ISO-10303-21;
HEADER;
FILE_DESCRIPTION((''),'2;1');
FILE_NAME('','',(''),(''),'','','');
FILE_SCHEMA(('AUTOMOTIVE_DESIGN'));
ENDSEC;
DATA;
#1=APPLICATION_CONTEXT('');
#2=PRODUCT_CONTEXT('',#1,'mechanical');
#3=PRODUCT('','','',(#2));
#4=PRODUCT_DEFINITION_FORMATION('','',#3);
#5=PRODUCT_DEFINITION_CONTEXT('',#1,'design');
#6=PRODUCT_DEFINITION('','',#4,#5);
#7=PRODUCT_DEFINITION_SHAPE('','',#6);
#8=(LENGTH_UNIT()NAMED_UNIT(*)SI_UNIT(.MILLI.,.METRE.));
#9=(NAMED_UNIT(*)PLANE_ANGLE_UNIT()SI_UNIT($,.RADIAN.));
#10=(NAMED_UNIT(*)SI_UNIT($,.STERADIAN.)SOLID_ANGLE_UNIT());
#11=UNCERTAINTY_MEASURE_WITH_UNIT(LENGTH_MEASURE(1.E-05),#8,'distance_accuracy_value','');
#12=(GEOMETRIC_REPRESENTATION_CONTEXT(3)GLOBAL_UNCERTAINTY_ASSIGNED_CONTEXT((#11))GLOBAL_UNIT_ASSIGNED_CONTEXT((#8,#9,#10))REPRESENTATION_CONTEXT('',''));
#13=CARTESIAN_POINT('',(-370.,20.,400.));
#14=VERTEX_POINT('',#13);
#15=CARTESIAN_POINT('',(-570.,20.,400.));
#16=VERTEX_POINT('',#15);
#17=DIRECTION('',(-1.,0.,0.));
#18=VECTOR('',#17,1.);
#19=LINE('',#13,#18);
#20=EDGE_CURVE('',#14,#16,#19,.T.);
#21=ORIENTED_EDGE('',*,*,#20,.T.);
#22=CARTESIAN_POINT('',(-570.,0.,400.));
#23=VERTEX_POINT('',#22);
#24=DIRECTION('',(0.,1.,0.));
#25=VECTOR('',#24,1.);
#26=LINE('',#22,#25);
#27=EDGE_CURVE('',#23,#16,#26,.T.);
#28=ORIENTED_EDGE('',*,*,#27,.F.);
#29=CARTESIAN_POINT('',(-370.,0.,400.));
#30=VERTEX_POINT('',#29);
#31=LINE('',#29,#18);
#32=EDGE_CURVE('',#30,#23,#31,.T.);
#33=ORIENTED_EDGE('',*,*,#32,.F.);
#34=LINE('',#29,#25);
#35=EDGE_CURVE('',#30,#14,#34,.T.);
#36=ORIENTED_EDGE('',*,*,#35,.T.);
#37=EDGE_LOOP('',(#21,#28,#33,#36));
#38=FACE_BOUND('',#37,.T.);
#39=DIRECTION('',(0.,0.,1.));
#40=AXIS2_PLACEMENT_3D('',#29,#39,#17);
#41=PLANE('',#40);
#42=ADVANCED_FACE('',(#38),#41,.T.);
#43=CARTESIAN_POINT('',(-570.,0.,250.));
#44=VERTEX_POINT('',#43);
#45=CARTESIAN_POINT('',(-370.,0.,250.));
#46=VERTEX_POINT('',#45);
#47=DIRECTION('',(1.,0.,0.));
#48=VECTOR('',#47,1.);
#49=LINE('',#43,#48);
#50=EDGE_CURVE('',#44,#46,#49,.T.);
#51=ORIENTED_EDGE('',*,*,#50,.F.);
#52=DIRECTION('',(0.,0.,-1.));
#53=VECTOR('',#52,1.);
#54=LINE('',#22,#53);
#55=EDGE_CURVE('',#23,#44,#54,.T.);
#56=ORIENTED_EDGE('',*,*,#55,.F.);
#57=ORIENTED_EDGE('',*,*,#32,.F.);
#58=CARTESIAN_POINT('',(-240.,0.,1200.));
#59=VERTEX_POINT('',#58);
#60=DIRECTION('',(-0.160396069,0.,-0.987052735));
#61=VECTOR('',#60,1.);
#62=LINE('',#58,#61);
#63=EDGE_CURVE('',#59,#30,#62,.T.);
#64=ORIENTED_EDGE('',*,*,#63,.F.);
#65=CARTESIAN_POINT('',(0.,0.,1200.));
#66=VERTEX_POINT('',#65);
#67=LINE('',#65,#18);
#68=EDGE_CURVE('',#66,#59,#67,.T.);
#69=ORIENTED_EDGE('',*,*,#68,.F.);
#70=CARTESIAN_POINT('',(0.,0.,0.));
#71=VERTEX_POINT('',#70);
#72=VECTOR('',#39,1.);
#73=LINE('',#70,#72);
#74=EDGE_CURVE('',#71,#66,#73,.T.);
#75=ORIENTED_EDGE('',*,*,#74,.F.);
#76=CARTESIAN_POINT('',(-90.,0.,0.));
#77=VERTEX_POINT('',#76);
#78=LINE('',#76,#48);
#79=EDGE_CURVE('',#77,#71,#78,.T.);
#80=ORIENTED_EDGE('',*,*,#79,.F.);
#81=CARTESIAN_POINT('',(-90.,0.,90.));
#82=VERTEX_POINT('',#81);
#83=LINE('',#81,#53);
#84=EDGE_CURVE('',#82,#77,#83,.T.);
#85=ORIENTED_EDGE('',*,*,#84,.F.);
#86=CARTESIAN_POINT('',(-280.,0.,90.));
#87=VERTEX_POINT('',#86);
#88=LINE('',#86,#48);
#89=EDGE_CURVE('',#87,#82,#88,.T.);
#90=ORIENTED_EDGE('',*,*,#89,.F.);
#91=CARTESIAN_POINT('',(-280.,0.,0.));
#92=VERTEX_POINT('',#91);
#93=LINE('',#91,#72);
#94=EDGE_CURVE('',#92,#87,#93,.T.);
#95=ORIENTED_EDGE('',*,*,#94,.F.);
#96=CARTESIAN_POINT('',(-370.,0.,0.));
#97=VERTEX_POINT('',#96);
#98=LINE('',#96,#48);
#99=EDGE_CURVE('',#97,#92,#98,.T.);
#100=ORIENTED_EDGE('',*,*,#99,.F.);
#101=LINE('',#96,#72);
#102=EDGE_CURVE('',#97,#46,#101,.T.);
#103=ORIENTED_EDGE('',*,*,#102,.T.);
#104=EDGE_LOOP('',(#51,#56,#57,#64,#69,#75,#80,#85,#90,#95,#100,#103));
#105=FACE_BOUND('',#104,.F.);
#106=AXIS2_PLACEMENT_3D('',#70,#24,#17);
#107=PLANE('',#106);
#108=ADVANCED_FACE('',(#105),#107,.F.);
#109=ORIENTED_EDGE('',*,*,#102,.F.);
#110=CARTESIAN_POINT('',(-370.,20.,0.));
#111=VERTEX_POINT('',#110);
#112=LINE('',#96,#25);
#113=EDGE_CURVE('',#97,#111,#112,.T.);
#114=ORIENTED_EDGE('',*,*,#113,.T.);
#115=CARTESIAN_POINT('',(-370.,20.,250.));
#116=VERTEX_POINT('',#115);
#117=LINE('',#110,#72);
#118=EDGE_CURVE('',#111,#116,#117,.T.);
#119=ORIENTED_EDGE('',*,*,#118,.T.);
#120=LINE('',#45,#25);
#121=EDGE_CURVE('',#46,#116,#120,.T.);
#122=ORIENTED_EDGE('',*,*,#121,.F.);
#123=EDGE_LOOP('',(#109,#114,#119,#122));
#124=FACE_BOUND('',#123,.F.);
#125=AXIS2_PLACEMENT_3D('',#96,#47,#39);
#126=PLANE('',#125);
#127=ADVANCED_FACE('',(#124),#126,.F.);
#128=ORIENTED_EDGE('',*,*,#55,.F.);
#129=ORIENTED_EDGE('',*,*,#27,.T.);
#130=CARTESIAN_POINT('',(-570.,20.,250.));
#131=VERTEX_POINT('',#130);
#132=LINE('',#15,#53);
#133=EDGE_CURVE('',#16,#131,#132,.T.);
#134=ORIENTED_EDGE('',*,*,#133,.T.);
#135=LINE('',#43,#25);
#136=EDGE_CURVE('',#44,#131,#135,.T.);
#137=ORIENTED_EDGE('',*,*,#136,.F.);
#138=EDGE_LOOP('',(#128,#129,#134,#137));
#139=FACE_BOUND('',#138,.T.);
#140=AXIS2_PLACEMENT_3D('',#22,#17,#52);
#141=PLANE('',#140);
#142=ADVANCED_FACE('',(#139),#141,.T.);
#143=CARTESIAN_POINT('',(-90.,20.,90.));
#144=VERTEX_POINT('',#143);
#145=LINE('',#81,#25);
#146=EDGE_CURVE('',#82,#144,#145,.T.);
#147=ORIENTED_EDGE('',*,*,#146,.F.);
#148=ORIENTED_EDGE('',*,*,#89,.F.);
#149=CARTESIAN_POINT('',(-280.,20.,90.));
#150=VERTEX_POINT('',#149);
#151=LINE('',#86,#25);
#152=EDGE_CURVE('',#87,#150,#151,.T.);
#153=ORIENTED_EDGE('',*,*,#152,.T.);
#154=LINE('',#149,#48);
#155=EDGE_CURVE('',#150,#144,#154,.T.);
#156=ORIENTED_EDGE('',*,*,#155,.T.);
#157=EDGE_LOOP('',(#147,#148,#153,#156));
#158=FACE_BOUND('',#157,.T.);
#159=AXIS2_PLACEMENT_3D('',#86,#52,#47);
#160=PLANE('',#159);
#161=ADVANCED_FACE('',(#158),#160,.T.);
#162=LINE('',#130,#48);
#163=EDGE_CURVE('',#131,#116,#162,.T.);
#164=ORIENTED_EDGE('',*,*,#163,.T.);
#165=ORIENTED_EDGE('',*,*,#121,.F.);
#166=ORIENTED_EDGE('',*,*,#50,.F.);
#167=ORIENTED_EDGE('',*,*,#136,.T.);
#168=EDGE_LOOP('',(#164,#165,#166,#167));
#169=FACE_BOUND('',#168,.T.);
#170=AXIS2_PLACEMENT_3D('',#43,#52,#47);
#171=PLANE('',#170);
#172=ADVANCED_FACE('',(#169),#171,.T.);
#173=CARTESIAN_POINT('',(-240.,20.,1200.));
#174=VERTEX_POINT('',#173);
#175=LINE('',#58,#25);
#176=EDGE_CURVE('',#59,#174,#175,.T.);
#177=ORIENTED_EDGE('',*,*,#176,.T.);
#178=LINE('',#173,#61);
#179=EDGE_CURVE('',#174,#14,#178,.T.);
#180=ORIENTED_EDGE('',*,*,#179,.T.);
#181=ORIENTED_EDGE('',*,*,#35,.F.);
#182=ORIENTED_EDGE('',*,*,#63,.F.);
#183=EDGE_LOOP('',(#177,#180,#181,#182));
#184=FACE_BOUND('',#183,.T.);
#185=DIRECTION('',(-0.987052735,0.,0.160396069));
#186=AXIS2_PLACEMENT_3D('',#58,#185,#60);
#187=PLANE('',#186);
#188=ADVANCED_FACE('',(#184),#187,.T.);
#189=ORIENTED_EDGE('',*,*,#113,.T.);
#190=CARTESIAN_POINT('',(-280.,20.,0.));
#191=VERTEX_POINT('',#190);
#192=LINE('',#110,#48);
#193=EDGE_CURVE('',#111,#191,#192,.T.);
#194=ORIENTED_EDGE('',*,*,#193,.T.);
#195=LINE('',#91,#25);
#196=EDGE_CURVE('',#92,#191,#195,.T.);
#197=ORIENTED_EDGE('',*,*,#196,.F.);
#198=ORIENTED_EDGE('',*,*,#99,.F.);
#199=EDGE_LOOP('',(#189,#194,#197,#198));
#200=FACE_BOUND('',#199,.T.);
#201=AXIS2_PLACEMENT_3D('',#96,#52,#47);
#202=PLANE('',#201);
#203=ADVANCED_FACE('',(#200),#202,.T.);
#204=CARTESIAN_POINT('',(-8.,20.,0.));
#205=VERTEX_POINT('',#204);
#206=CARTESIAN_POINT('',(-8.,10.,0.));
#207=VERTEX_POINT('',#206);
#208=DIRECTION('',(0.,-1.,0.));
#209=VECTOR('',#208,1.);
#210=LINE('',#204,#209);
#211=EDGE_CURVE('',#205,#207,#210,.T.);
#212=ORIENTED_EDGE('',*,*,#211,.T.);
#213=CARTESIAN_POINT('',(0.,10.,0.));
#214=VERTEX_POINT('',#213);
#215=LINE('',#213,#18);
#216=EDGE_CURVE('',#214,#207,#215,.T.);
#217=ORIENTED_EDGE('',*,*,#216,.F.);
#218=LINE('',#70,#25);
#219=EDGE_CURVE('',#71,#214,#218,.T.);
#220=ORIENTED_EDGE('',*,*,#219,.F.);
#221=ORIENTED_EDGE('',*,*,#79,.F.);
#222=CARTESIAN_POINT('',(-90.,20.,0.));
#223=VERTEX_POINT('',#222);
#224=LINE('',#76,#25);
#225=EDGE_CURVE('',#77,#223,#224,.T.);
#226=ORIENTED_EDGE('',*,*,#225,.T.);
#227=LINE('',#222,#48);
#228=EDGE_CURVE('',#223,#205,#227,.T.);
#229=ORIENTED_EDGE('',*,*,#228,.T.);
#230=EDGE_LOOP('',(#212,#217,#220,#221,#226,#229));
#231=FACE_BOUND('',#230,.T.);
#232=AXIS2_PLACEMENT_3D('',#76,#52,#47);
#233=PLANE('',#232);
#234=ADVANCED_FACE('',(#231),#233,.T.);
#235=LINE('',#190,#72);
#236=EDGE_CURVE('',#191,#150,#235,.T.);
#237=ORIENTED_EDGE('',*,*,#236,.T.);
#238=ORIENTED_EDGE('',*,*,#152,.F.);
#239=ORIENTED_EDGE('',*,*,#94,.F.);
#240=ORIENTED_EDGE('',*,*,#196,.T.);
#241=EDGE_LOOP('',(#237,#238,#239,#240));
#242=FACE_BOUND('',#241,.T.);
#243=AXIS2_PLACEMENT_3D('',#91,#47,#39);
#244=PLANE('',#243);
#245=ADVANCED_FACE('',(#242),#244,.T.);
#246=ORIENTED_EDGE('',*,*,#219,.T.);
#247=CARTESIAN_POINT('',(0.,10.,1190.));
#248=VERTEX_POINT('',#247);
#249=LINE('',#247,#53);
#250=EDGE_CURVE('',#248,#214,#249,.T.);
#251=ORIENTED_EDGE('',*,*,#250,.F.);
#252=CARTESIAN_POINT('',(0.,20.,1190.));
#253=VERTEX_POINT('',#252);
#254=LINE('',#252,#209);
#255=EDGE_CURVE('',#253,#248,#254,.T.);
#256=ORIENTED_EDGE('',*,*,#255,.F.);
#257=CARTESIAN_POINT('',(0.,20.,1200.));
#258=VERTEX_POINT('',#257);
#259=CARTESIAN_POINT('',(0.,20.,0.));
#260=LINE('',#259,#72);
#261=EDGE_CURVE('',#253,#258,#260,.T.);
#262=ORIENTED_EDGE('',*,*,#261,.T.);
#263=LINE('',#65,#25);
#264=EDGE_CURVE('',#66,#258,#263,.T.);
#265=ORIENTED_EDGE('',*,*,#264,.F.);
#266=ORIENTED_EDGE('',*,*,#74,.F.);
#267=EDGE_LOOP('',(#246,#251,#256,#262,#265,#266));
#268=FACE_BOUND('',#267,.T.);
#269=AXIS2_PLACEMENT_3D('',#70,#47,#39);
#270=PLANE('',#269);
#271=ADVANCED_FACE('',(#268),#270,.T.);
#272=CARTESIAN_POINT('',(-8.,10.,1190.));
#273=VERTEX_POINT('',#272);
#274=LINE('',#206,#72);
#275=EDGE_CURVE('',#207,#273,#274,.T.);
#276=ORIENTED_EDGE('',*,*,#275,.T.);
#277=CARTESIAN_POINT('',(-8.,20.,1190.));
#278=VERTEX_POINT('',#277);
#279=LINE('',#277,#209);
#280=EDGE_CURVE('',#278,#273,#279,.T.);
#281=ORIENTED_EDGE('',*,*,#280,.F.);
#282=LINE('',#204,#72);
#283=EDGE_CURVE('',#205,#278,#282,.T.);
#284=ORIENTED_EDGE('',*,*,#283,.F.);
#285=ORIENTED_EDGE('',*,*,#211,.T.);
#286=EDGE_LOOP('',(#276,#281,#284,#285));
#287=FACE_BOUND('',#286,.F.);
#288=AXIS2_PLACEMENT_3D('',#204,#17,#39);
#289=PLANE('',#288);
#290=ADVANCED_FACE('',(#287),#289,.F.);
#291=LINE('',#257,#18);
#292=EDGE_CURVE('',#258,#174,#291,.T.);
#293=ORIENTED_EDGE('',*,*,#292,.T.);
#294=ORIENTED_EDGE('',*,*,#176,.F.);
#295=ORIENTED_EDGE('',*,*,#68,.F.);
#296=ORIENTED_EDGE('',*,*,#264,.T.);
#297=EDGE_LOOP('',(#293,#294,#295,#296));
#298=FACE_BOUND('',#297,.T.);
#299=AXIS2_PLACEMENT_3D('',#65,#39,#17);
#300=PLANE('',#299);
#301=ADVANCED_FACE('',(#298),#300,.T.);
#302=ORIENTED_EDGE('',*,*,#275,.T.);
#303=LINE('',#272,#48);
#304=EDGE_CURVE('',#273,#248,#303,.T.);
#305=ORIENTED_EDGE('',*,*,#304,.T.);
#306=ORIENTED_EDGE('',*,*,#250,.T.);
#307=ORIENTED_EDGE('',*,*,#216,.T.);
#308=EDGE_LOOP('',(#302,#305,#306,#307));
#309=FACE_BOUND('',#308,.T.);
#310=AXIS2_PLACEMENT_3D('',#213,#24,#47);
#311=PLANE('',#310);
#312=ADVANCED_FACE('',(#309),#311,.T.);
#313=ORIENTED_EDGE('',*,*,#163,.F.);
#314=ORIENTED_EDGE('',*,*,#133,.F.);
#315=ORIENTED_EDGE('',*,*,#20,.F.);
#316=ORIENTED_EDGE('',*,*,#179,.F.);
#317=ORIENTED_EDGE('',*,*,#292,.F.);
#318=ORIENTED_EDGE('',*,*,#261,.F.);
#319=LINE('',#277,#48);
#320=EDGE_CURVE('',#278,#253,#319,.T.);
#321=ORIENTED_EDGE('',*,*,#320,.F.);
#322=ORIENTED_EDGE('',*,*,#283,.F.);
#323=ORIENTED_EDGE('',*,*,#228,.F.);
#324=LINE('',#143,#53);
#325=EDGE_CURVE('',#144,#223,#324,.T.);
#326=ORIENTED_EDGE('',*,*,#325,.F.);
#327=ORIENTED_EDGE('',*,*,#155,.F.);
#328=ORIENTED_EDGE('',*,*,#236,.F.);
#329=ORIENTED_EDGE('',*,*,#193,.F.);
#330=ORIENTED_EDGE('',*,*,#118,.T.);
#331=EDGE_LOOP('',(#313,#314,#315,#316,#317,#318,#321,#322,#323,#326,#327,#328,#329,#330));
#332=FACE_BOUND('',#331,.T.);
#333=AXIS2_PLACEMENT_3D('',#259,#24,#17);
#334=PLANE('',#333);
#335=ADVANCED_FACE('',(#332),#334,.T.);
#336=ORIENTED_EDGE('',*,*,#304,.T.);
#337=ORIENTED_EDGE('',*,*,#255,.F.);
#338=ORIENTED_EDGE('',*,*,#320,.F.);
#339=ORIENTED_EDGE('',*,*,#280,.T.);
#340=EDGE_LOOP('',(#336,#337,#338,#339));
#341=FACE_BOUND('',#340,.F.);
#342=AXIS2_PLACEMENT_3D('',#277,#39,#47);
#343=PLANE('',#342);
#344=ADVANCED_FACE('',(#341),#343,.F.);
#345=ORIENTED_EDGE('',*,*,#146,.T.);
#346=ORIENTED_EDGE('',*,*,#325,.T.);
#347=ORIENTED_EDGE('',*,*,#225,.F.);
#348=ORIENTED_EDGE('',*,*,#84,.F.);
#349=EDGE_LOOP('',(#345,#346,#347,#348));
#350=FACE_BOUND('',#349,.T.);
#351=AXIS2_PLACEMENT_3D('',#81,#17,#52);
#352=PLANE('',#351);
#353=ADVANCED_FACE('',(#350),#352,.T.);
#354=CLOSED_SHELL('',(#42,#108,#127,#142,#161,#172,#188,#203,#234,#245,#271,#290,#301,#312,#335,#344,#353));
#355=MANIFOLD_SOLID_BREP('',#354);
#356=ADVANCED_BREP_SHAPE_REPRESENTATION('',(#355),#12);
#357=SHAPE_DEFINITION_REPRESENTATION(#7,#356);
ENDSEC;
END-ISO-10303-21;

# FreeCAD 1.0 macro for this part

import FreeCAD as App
import Part
import Sketcher
Q = App.Units.Quantity

doc = App.newDocument("Part")
body = doc.addObject("PartDesign::Body", "Body")

# Sketch on XZ plane
sketch1 = body.newObject("Sketcher::SketchObject", "Sketch")
sketch1.AttachmentSupport = (doc.getObject("XZ_Plane"), [""])
sketch1.MapMode = "FlatFace"
sketch1.addGeometry(Part.LineSegment(App.Vector(0, 1200, 0), App.Vector(0, 0, 0)), False)
sketch1.addGeometry(Part.LineSegment(App.Vector(0, 0, 0), App.Vector(-90, 0, 0)), False)
sketch1.addGeometry(Part.LineSegment(App.Vector(-90, 0, 0), App.Vector(-90, 90, 0)), False)
sketch1.addGeometry(Part.LineSegment(App.Vector(-90, 90, 0), App.Vector(-280, 90, 0)), False)
sketch1.addGeometry(Part.LineSegment(App.Vector(-280, 90, 0), App.Vector(-280, 0, 0)), False)
sketch1.addGeometry(Part.LineSegment(App.Vector(-280, 0, 0), App.Vector(-370, 0, 0)), False)
sketch1.addGeometry(Part.LineSegment(App.Vector(-370, 0, 0), App.Vector(-370, 250, 0)), False)
sketch1.addGeometry(Part.LineSegment(App.Vector(-370, 250, 0), App.Vector(-570, 250, 0)), False)
sketch1.addGeometry(Part.LineSegment(App.Vector(-570, 250, 0), App.Vector(-570, 400, 0)), False)
sketch1.addGeometry(Part.LineSegment(App.Vector(-570, 400, 0), App.Vector(-370, 400, 0)), False)
sketch1.addGeometry(Part.LineSegment(App.Vector(-370, 400, 0), App.Vector(-240, 1200, 0)), False)
sketch1.addGeometry(Part.LineSegment(App.Vector(-240, 1200, 0), App.Vector(0, 1200, 0)), False)
sketch1.addConstraint(Sketcher.Constraint("Coincident", 0, 2, 1, 1))
sketch1.addConstraint(Sketcher.Constraint("Coincident", 1, 2, 2, 1))
sketch1.addConstraint(Sketcher.Constraint("Coincident", 2, 2, 3, 1))
sketch1.addConstraint(Sketcher.Constraint("Coincident", 3, 2, 4, 1))
sketch1.addConstraint(Sketcher.Constraint("Coincident", 4, 2, 5, 1))
sketch1.addConstraint(Sketcher.Constraint("Coincident", 5, 2, 6, 1))
sketch1.addConstraint(Sketcher.Constraint("Coincident", 6, 2, 7, 1))
sketch1.addConstraint(Sketcher.Constraint("Coincident", 7, 2, 8, 1))
sketch1.addConstraint(Sketcher.Constraint("Coincident", 8, 2, 9, 1))
sketch1.addConstraint(Sketcher.Constraint("Coincident", 9, 2, 10, 1))
sketch1.addConstraint(Sketcher.Constraint("Coincident", 10, 2, 11, 1))
sketch1.addConstraint(Sketcher.Constraint("Coincident", 11, 2, 0, 1))
sketch1.addConstraint(Sketcher.Constraint("Vertical", 0))
sketch1.addConstraint(Sketcher.Constraint("Horizontal", 1))
sketch1.addConstraint(Sketcher.Constraint("Vertical", 2))
sketch1.addConstraint(Sketcher.Constraint("Horizontal", 3))
sketch1.addConstraint(Sketcher.Constraint("Vertical", 4))
sketch1.addConstraint(Sketcher.Constraint("Horizontal", 5))
sketch1.addConstraint(Sketcher.Constraint("Vertical", 6))
sketch1.addConstraint(Sketcher.Constraint("Horizontal", 7))
sketch1.addConstraint(Sketcher.Constraint("Vertical", 8))
sketch1.addConstraint(Sketcher.Constraint("Horizontal", 9))
sketch1.addConstraint(Sketcher.Constraint("Horizontal", 11))
sketch1.addConstraint(Sketcher.Constraint("Coincident", 0, 2, -1, 1))
sketch1.addConstraint(Sketcher.Constraint("PointOnObject", 4, 2, -1))
sketch1.addConstraint(Sketcher.Constraint("Vertical", 6, 2, 9, 2))
sketch1.addConstraint(Sketcher.Constraint("Equal", 1, 5))
sketch1.addConstraint(Sketcher.Constraint("Equal", 5, 2))
sketch1.addConstraint(Sketcher.Constraint("DistanceX", 1, 2, 1, 1, Q("90 mm")))
sketch1.addConstraint(Sketcher.Constraint("DistanceX", 3, 2, 3, 1, Q("190 mm")))
sketch1.addConstraint(Sketcher.Constraint("DistanceX", 7, 2, 7, 1, Q("200 mm")))
sketch1.addConstraint(Sketcher.Constraint("DistanceX", 11, 1, 11, 2, Q("240 mm")))
sketch1.addConstraint(Sketcher.Constraint("DistanceY", 0, 2, 0, 1, Q("1200 mm")))
sketch1.addConstraint(Sketcher.Constraint("DistanceY", 6, 1, 6, 2, Q("250 mm")))
sketch1.addConstraint(Sketcher.Constraint("DistanceY", 8, 1, 8, 2, Q("150 mm")))
pad1 = body.newObject("PartDesign::Pad", "Pad")
pad1.Profile = sketch1
pad1.Length = 20
pad1.Reversed = True

# Sketch on XZ plane
sketch2 = body.newObject("Sketcher::SketchObject", "Sketch001")
sketch2.AttachmentSupport = (doc.getObject("XZ_Plane"), [""])
sketch2.MapMode = "FlatFace"
sketch2.AttachmentOffset = App.Placement(App.Vector(0, 0, -20), App.Rotation())
sketch2.addGeometry(Part.LineSegment(App.Vector(-8, 0, 0), App.Vector(-8, 1190, 0)), False)
sketch2.addGeometry(Part.LineSegment(App.Vector(-8, 1190, 0), App.Vector(0, 1190, 0)), False)
sketch2.addGeometry(Part.LineSegment(App.Vector(0, 1190, 0), App.Vector(0, 0, 0)), False)
sketch2.addGeometry(Part.LineSegment(App.Vector(0, 0, 0), App.Vector(-8, 0, 0)), False)
sketch2.addConstraint(Sketcher.Constraint("Coincident", 0, 2, 1, 1))
sketch2.addConstraint(Sketcher.Constraint("Coincident", 1, 2, 2, 1))
sketch2.addConstraint(Sketcher.Constraint("Coincident", 2, 2, 3, 1))
sketch2.addConstraint(Sketcher.Constraint("Coincident", 3, 2, 0, 1))
sketch2.addConstraint(Sketcher.Constraint("Vertical", 0))
sketch2.addConstraint(Sketcher.Constraint("Horizontal", 1))
sketch2.addConstraint(Sketcher.Constraint("Vertical", 2))
sketch2.addConstraint(Sketcher.Constraint("Horizontal", 3))
sketch2.addConstraint(Sketcher.Constraint("Coincident", 2, 2, -1, 1))
sketch2.addConstraint(Sketcher.Constraint("DistanceX", 1, 1, 1, 2, Q("8 mm")))
sketch2.addConstraint(Sketcher.Constraint("DistanceY", 0, 1, 0, 2, Q("1190 mm")))
pocket1 = body.newObject("PartDesign::Pocket", "Pocket")
pocket1.Profile = sketch2
pocket1.Length = 10
pocket1.Reversed = True

doc.recompute()
